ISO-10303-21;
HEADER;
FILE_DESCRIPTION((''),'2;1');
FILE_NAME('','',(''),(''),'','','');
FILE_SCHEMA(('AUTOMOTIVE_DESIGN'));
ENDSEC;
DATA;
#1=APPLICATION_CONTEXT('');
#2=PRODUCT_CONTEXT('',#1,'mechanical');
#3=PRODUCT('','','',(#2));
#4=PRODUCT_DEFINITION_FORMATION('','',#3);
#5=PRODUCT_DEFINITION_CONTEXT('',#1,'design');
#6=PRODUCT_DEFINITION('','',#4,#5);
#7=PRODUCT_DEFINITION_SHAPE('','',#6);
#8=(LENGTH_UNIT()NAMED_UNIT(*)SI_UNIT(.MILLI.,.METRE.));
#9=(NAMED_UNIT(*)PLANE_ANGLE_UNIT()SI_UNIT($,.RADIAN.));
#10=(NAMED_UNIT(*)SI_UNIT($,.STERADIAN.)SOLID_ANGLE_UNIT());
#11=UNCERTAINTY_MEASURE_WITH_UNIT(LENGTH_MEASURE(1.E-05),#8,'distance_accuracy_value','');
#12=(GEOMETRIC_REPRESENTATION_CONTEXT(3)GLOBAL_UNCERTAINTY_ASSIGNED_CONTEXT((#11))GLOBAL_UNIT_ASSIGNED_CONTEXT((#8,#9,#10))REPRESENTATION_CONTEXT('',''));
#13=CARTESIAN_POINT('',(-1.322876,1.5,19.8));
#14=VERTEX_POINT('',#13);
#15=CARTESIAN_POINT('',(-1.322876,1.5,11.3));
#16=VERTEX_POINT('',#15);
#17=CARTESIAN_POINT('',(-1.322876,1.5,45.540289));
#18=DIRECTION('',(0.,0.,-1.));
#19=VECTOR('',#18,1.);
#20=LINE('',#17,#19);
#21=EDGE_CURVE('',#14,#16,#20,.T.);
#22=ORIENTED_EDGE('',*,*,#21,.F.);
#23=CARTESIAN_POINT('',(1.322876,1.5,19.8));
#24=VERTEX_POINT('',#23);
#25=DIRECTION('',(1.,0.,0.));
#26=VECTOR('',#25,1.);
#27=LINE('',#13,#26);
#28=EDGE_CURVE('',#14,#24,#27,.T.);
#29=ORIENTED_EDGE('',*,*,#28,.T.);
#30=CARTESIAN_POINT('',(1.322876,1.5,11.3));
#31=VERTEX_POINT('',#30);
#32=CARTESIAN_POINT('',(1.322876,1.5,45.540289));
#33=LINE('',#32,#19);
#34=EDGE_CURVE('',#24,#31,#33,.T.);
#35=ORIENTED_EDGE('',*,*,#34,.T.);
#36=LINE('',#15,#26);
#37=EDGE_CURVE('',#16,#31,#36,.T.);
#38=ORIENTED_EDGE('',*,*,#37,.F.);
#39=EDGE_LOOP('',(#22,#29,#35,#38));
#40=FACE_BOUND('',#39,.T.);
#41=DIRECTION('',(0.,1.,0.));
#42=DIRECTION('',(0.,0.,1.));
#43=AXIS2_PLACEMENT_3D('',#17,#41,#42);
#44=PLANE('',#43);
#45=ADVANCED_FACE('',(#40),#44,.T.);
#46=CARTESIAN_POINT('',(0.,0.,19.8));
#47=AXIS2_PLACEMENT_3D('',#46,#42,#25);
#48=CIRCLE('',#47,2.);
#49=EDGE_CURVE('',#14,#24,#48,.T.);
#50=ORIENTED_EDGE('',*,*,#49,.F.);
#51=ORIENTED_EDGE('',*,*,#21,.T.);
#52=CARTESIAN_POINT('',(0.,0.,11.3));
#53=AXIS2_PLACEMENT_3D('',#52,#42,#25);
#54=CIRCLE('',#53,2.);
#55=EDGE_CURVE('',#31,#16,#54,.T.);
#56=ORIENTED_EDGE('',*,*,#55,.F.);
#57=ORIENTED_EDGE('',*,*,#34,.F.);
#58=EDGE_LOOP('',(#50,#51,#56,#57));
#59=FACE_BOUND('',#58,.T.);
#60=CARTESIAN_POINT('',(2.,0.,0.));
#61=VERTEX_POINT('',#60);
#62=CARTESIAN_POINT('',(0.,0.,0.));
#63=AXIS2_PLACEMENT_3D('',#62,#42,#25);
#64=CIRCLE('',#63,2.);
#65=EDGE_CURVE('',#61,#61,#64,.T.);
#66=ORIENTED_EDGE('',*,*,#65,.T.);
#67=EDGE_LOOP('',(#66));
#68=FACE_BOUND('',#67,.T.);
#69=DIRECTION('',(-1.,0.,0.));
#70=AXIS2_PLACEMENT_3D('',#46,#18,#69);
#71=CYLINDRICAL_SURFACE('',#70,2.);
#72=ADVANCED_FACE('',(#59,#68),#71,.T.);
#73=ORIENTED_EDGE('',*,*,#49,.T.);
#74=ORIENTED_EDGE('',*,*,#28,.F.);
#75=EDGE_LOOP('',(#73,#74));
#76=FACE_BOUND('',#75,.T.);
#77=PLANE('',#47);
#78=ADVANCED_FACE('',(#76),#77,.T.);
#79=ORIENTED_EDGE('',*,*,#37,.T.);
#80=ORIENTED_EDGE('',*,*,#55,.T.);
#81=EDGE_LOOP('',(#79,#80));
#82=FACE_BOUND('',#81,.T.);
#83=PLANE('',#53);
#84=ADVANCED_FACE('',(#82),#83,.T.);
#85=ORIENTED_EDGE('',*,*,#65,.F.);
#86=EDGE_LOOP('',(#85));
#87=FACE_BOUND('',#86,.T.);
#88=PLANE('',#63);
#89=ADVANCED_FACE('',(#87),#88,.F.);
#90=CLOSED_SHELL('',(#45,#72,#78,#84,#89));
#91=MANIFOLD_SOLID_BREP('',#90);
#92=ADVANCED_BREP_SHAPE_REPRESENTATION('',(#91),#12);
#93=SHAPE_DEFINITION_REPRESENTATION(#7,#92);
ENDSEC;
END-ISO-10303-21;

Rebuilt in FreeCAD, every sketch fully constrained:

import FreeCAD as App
import Part
import Sketcher

V = App.Vector

doc = App.newDocument("Part")
params = doc.addObject("Spreadsheet::Sheet", "Params")
for row, (alias, value) in enumerate([
    ("sketch1_diameter", "4 mm"),
    ("pad1_length", "19.8 mm"),
    ("pocket1_length", "1 mm"),
    ("pocket1_length2", "8.5 mm"),
], start=1):
    params.set(f"A{row}", alias)
    params.set(f"B{row}", "=" + value)
    params.setAlias(f"B{row}", alias)

body = doc.addObject("PartDesign::Body", "Body")

sketch1 = body.newObject("Sketcher::SketchObject", "Sketch")
sketch1.AttachmentSupport = (doc.getObject("XY_Plane"), [""])
sketch1.MapMode = "FlatFace"
sketch1.addGeometry(Part.Circle(V(0, 0, 0), V(0, 0, 1), 2), False)
sketch1.addConstraint(Sketcher.Constraint("Coincident", 0, 3, -1, 1))
sketch1.addConstraint(Sketcher.Constraint("Diameter", 0, 4.0))
sketch1.setExpression("Constraints[1]", "Params.sketch1_diameter")
pad1 = body.newObject("PartDesign::Pad", "Pad")
pad1.Profile = sketch1
pad1.setExpression("Length", "Params.pad1_length")

sketch2 = body.newObject("Sketcher::SketchObject", "Sketch001")
sketch2.AttachmentSupport = (doc.getObject("XY_Plane"), [""])
sketch2.MapMode = "FlatFace"
sketch2.AttachmentOffset = App.Placement(V(0, 0, 19.8), App.Rotation())
sketch2.addGeometry(Part.LineSegment(V(-21, 2, 0), V(21, 2, 0)), False)
sketch2.addGeometry(Part.LineSegment(V(21, 2, 0), V(21, 41, 0)), False)
sketch2.addGeometry(Part.LineSegment(V(21, 41, 0), V(-21, 41, 0)), False)
sketch2.addGeometry(Part.LineSegment(V(-21, 41, 0), V(-21, 2, 0)), False)
sketch2.addConstraint(Sketcher.Constraint("Coincident", 0, 2, 1, 1))
sketch2.addConstraint(Sketcher.Constraint("Coincident", 1, 2, 2, 1))
sketch2.addConstraint(Sketcher.Constraint("Coincident", 2, 2, 3, 1))
sketch2.addConstraint(Sketcher.Constraint("Coincident", 3, 2, 0, 1))
sketch2.addConstraint(Sketcher.Constraint("Horizontal", 0))
sketch2.addConstraint(Sketcher.Constraint("Vertical", 1))
sketch2.addConstraint(Sketcher.Constraint("Horizontal", 2))
sketch2.addConstraint(Sketcher.Constraint("Vertical", 3))
sketch2.addConstraint(Sketcher.Constraint("DistanceY", -1, 1, 0, 2, 1.5))
sketch2.addConstraint(Sketcher.Constraint("DistanceX", 0, 1, 0, 2, 41.95026))
sketch2.addConstraint(Sketcher.Constraint("DistanceY", 1, 1, 1, 2, 39.304508))
sketch2.addConstraint(Sketcher.Constraint("DistanceX", -1, 1, 0, 2, 20.97513))
pocket1 = body.newObject("PartDesign::Pocket", "Pocket")
pocket1.Profile = sketch2
pocket1.Type = "TwoLengths"
pocket1.setExpression("Length", "Params.pocket1_length")
pocket1.setExpression("Length2", "Params.pocket1_length2")
pocket1.Reversed = True

doc.recompute()
